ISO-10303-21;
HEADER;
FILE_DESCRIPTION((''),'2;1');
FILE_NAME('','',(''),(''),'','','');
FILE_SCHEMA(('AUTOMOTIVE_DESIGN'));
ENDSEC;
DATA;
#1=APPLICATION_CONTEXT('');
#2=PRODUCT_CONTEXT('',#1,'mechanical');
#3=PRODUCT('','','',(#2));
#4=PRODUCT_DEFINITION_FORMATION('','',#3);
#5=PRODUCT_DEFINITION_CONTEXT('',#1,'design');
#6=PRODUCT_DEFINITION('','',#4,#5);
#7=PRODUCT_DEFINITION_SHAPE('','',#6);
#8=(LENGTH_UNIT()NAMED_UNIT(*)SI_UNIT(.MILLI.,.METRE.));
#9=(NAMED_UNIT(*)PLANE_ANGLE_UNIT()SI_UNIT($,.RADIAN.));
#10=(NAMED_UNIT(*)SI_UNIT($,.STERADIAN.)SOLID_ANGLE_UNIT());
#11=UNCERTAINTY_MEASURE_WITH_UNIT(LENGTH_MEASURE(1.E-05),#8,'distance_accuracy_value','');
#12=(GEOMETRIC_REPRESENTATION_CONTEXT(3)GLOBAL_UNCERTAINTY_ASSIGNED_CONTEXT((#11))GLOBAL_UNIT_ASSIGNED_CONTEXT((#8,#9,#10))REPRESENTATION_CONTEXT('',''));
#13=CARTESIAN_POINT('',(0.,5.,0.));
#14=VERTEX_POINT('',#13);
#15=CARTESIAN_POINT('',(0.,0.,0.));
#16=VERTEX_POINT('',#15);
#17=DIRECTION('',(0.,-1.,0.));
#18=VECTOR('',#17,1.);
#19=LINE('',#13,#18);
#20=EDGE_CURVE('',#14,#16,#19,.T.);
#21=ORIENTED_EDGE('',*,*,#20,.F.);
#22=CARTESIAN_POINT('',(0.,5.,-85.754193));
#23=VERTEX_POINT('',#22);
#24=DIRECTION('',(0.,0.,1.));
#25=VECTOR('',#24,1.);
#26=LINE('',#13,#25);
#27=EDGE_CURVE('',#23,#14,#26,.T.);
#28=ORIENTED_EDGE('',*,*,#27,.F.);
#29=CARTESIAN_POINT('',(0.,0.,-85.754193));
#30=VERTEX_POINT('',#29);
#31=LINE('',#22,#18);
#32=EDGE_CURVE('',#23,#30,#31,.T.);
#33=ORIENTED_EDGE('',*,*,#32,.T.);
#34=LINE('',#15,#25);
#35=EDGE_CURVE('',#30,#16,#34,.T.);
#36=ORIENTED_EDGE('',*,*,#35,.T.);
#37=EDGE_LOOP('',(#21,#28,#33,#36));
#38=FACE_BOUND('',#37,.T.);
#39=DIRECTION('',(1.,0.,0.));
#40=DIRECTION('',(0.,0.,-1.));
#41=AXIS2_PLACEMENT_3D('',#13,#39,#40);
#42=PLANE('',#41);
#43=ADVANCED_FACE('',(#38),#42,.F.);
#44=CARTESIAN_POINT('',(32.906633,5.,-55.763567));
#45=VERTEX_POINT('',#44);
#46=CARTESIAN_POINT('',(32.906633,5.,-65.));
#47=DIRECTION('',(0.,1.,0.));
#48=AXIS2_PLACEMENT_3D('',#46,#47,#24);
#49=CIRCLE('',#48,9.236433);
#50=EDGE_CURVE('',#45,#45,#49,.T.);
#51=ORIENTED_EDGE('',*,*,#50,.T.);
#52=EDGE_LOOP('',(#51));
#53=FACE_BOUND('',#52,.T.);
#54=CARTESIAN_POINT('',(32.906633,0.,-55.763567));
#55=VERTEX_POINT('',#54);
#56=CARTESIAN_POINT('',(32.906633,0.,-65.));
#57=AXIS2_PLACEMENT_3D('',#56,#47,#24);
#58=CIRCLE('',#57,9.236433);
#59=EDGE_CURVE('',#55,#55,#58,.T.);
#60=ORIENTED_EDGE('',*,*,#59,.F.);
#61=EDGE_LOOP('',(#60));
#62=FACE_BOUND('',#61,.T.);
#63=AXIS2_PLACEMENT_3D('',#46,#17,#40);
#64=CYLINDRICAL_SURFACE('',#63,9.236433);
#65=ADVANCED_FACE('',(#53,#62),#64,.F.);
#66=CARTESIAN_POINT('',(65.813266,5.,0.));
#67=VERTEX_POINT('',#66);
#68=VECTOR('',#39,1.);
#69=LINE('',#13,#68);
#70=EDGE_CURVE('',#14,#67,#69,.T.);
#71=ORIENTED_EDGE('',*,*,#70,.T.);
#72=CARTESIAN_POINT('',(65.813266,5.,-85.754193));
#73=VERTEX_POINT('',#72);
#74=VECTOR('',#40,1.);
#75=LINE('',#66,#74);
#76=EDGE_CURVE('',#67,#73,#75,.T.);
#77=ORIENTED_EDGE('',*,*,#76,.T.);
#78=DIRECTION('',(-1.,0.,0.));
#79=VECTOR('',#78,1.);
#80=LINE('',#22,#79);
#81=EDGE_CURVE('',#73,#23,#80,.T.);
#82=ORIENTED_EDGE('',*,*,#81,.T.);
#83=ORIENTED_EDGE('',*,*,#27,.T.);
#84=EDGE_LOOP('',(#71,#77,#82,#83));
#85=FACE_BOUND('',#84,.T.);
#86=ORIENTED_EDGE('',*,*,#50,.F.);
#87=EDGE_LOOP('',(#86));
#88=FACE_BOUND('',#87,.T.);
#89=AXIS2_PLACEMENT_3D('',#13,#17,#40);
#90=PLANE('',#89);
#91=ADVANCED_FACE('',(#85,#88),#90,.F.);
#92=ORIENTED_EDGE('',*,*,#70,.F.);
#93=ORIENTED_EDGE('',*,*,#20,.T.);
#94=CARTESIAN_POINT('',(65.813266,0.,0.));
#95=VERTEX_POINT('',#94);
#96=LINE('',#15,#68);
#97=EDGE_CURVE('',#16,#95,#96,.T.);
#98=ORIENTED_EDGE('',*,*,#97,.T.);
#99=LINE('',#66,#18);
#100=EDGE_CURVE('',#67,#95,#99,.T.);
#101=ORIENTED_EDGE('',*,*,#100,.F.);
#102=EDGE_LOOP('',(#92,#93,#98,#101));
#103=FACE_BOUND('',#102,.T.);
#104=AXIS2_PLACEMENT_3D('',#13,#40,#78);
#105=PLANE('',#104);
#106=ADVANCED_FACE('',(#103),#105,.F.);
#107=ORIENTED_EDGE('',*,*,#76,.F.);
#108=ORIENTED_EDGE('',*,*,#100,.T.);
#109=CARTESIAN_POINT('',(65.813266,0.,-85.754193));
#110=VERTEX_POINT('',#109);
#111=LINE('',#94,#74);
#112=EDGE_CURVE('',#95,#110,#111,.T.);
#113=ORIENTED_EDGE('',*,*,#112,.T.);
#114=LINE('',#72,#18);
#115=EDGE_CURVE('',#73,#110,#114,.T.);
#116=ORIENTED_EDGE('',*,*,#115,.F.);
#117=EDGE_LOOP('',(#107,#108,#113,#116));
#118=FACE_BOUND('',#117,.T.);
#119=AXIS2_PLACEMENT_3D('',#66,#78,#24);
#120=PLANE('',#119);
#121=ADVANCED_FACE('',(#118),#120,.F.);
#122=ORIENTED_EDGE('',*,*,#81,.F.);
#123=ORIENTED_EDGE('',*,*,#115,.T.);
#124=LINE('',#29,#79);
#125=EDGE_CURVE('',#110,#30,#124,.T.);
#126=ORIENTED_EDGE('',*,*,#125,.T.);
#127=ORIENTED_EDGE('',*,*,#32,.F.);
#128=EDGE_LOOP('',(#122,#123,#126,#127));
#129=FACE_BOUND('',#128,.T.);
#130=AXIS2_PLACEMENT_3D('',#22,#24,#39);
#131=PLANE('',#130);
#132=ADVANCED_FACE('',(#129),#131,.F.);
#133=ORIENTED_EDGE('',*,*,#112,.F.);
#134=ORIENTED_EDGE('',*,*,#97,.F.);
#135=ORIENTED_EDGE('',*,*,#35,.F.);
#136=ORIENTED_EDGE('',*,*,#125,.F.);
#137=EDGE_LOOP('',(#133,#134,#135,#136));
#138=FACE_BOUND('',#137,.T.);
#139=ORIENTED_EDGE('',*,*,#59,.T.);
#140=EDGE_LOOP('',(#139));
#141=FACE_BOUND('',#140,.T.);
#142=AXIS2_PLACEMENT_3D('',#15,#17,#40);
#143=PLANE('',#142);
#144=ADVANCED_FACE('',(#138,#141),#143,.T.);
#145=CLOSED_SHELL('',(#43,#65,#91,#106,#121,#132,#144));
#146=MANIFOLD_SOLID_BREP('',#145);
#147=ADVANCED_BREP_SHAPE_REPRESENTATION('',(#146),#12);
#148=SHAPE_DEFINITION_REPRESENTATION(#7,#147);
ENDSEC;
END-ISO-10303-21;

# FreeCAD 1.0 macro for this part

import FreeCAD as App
import Part
import Sketcher


def add_polygon(sketch, points):
    """Adds a closed chain of lines whose ends are joined by coincident constraints."""
    first, n = sketch.GeometryCount, len(points)
    for a, b in zip(points, points[1:] + points[:1]):
        sketch.addGeometry(Part.LineSegment(App.Vector(*a, 0), App.Vector(*b, 0)), False)
    for i in range(n):
        sketch.addConstraint(Sketcher.Constraint("Coincident", first + i, 2, first + (i + 1) % n, 1))

doc = App.newDocument("Part")
body = doc.addObject("PartDesign::Body", "Body")

sketch1 = body.newObject("Sketcher::SketchObject", "Sketch")
sketch1.AttachmentSupport = (doc.getObject("XZ_Plane"), [""])
sketch1.MapMode = "FlatFace"
add_polygon(sketch1, [(0, -86), (0, 0), (66, 0), (66, -86)])
sketch1.addGeometry(Part.Circle(App.Vector(33, -65, 0), App.Vector(0, 0, 1), 9), False)
sketch1.addConstraint([
    Sketcher.Constraint("Vertical", 0),
    Sketcher.Constraint("Horizontal", 1),
    Sketcher.Constraint("Vertical", 2),
    Sketcher.Constraint("Horizontal", 3),
    Sketcher.Constraint("Coincident", 0, 2, -1, 1),
    Sketcher.Constraint("DistanceY", 4, 3, -1, 1, 65.0),
    Sketcher.Constraint("Diameter", 4, 18.472866),
    Sketcher.Constraint("DistanceX", 1, 1, 1, 2, 65.813266),
    Sketcher.Constraint("DistanceY", 0, 1, 0, 2, 85.754193),
    Sketcher.Constraint("DistanceX", -1, 1, 4, 3, 32.906633),
])
pad1 = body.newObject("PartDesign::Pad", "Pad")
pad1.Profile = sketch1
pad1.Length = 5
pad1.Reversed = True

doc.recompute()
